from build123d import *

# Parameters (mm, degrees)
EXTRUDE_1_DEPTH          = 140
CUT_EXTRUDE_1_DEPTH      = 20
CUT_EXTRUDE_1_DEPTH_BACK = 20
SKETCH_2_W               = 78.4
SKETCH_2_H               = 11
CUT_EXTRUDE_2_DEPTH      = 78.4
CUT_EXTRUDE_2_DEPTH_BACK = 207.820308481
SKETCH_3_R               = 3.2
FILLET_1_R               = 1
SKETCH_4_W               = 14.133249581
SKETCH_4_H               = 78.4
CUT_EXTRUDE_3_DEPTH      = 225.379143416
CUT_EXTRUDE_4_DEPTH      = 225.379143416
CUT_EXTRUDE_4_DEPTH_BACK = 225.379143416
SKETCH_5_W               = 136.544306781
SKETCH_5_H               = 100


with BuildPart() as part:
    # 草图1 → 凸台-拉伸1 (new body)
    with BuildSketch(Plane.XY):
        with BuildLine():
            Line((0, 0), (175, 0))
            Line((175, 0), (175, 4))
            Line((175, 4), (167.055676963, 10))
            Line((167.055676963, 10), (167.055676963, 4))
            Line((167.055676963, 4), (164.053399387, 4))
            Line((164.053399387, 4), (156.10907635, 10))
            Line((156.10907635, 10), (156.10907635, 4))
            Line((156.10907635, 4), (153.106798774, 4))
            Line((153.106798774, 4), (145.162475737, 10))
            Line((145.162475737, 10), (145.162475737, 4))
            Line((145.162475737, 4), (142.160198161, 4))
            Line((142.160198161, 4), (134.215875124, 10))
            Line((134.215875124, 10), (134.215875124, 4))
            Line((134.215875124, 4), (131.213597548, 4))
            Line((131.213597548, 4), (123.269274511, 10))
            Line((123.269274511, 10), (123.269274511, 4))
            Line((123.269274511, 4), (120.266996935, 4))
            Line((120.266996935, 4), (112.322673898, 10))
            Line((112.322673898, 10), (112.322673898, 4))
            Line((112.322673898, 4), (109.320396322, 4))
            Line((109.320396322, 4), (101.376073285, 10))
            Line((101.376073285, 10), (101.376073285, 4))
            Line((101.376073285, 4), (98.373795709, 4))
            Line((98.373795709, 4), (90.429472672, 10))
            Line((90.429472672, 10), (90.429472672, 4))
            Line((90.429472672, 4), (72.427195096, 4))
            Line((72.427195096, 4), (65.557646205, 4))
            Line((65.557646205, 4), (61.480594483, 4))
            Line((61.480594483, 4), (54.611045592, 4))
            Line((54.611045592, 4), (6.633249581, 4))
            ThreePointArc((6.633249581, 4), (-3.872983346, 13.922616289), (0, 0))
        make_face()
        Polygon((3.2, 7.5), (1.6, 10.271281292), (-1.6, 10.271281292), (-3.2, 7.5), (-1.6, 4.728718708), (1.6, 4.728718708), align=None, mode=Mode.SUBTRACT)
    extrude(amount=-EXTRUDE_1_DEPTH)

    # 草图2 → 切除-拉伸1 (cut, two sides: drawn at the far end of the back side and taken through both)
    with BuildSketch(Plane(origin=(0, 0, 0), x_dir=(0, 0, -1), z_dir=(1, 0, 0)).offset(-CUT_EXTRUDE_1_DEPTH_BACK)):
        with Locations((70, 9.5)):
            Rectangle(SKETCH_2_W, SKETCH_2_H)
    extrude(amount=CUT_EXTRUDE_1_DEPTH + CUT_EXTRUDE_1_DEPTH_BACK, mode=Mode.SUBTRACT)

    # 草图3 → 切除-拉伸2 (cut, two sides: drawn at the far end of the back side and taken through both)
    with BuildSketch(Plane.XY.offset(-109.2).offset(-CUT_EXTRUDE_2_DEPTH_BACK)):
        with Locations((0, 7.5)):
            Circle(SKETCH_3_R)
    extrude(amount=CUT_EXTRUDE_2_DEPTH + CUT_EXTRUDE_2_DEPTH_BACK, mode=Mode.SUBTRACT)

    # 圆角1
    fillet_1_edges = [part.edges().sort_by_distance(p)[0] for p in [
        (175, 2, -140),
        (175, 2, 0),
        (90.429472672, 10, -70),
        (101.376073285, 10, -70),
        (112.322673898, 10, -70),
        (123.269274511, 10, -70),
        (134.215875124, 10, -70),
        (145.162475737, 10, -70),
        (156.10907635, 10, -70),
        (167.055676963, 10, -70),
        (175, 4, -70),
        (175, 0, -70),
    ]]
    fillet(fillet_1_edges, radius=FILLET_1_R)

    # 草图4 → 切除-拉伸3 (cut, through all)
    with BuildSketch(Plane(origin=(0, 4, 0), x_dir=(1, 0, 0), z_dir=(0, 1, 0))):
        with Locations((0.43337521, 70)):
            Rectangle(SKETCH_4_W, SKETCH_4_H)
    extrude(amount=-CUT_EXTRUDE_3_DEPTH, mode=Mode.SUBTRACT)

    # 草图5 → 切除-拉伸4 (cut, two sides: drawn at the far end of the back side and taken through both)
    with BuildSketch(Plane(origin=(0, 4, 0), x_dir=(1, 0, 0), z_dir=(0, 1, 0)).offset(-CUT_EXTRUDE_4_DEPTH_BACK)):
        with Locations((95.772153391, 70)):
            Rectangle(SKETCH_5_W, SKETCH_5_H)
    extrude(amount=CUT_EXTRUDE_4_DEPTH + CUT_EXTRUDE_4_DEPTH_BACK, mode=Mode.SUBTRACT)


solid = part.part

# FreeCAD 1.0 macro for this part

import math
import FreeCAD as App
import Part
import Sketcher
from FreeCAD import Vector
Q = App.Units.Quantity


def edges_at(feature, points):
    """Names of the edges that pass closest to the given points."""
    edges = feature.Shape.Edges
    near = lambda p: min(range(len(edges)), key=lambda i: edges[i].distToShape(Part.Vertex(*p))[0])
    return sorted({f"Edge{near(p) + 1}" for p in points})


def add_polygon(sketch, points):
    """Adds a closed chain of lines whose ends are joined by coincident constraints."""
    first, n = sketch.GeometryCount, len(points)
    for a, b in zip(points, points[1:] + points[:1]):
        sketch.addGeometry(Part.LineSegment(App.Vector(*a, 0), App.Vector(*b, 0)), False)
    for i in range(n):
        sketch.addConstraint(Sketcher.Constraint("Coincident", first + i, 2, first + (i + 1) % n, 1))

doc = App.newDocument("Part")
body = doc.addObject("PartDesign::Body", "Body")

# Sketch on XY plane
sketch1 = doc.addObject("Sketcher::SketchObject", "Sketch")
body.addObject(sketch1)
sketch1.AttachmentSupport = (doc.XY_Plane, [""])
sketch1.MapMode = "FlatFace"
sketch1.addGeometry(Part.LineSegment(Vector(0, 0, 0), Vector(175, 0, 0)), False)  # 0
sketch1.addGeometry(Part.LineSegment(Vector(175, 0, 0), Vector(175, 4, 0)), False)  # 1
sketch1.addGeometry(Part.LineSegment(Vector(175, 4, 0), Vector(167.1, 10, 0)), False)  # 2
sketch1.addGeometry(Part.LineSegment(Vector(167.1, 10, 0), Vector(167.1, 4, 0)), False)  # 3
sketch1.addGeometry(Part.LineSegment(Vector(167.1, 4, 0), Vector(164.1, 4, 0)), False)  # 4
sketch1.addGeometry(Part.LineSegment(Vector(164.1, 4, 0), Vector(156.1, 10, 0)), False)  # 5
sketch1.addGeometry(Part.LineSegment(Vector(156.1, 10, 0), Vector(156.1, 4, 0)), False)  # 6
sketch1.addGeometry(Part.LineSegment(Vector(156.1, 4, 0), Vector(153.1, 4, 0)), False)  # 7
sketch1.addGeometry(Part.LineSegment(Vector(153.1, 4, 0), Vector(145.2, 10, 0)), False)  # 8
sketch1.addGeometry(Part.LineSegment(Vector(145.2, 10, 0), Vector(145.2, 4, 0)), False)  # 9
sketch1.addGeometry(Part.LineSegment(Vector(145.2, 4, 0), Vector(142.2, 4, 0)), False)  # 10
sketch1.addGeometry(Part.LineSegment(Vector(142.2, 4, 0), Vector(134.2, 10, 0)), False)  # 11
sketch1.addGeometry(Part.LineSegment(Vector(134.2, 10, 0), Vector(134.2, 4, 0)), False)  # 12
sketch1.addGeometry(Part.LineSegment(Vector(134.2, 4, 0), Vector(131.2, 4, 0)), False)  # 13
sketch1.addGeometry(Part.LineSegment(Vector(131.2, 4, 0), Vector(123.3, 10, 0)), False)  # 14
sketch1.addGeometry(Part.LineSegment(Vector(123.3, 10, 0), Vector(123.3, 4, 0)), False)  # 15
sketch1.addGeometry(Part.LineSegment(Vector(123.3, 4, 0), Vector(120.3, 4, 0)), False)  # 16
sketch1.addGeometry(Part.LineSegment(Vector(120.3, 4, 0), Vector(112.3, 10, 0)), False)  # 17
sketch1.addGeometry(Part.LineSegment(Vector(112.3, 10, 0), Vector(112.3, 4, 0)), False)  # 18
sketch1.addGeometry(Part.LineSegment(Vector(112.3, 4, 0), Vector(109.3, 4, 0)), False)  # 19
sketch1.addGeometry(Part.LineSegment(Vector(109.3, 4, 0), Vector(101.4, 10, 0)), False)  # 20
sketch1.addGeometry(Part.LineSegment(Vector(101.4, 10, 0), Vector(101.4, 4, 0)), False)  # 21
sketch1.addGeometry(Part.LineSegment(Vector(101.4, 4, 0), Vector(98.4, 4, 0)), False)  # 22
sketch1.addGeometry(Part.LineSegment(Vector(98.4, 4, 0), Vector(90.4, 10, 0)), False)  # 23
sketch1.addGeometry(Part.LineSegment(Vector(90.4, 10, 0), Vector(90.4, 4, 0)), False)  # 24
sketch1.addGeometry(Part.LineSegment(Vector(90.4, 4, 0), Vector(6.6, 4, 0)), False)  # 25
sketch1.addGeometry(Part.ArcOfCircle(Part.Circle(Vector(0, 7.5, 0), Vector(0, 0, 1), 7.5), math.radians(-28), math.radians(270)), False)  # 26
add_polygon(sketch1, [(1.6, 10.3), (3.2, 7.5), (1.6, 4.7), (-1.6, 4.7), (-3.2, 7.5), (-1.6, 10.3)])  # lines 27-32
sketch1.addConstraint(Sketcher.Constraint("Coincident", 0, 2, 1, 1))
sketch1.addConstraint(Sketcher.Constraint("Coincident", 1, 2, 2, 1))
sketch1.addConstraint(Sketcher.Constraint("Coincident", 2, 2, 3, 1))
sketch1.addConstraint(Sketcher.Constraint("Coincident", 3, 2, 4, 1))
sketch1.addConstraint(Sketcher.Constraint("Coincident", 4, 2, 5, 1))
sketch1.addConstraint(Sketcher.Constraint("Coincident", 5, 2, 6, 1))
sketch1.addConstraint(Sketcher.Constraint("Coincident", 6, 2, 7, 1))
sketch1.addConstraint(Sketcher.Constraint("Coincident", 7, 2, 8, 1))
sketch1.addConstraint(Sketcher.Constraint("Coincident", 8, 2, 9, 1))
sketch1.addConstraint(Sketcher.Constraint("Coincident", 9, 2, 10, 1))
sketch1.addConstraint(Sketcher.Constraint("Coincident", 10, 2, 11, 1))
sketch1.addConstraint(Sketcher.Constraint("Coincident", 11, 2, 12, 1))
sketch1.addConstraint(Sketcher.Constraint("Coincident", 12, 2, 13, 1))
sketch1.addConstraint(Sketcher.Constraint("Coincident", 13, 2, 14, 1))
sketch1.addConstraint(Sketcher.Constraint("Coincident", 14, 2, 15, 1))
sketch1.addConstraint(Sketcher.Constraint("Coincident", 15, 2, 16, 1))
sketch1.addConstraint(Sketcher.Constraint("Coincident", 16, 2, 17, 1))
sketch1.addConstraint(Sketcher.Constraint("Coincident", 17, 2, 18, 1))
sketch1.addConstraint(Sketcher.Constraint("Coincident", 18, 2, 19, 1))
sketch1.addConstraint(Sketcher.Constraint("Coincident", 19, 2, 20, 1))
sketch1.addConstraint(Sketcher.Constraint("Coincident", 20, 2, 21, 1))
sketch1.addConstraint(Sketcher.Constraint("Coincident", 21, 2, 22, 1))
sketch1.addConstraint(Sketcher.Constraint("Coincident", 22, 2, 23, 1))
sketch1.addConstraint(Sketcher.Constraint("Coincident", 23, 2, 24, 1))
sketch1.addConstraint(Sketcher.Constraint("Coincident", 24, 2, 25, 1))
sketch1.addConstraint(Sketcher.Constraint("Coincident", 25, 2, 26, 1))
sketch1.addConstraint(Sketcher.Constraint("Tangent", 26, 2, 0, 1))
sketch1.addConstraint(Sketcher.Constraint("Horizontal", 0))
sketch1.addConstraint(Sketcher.Constraint("Vertical", 1))
sketch1.addConstraint(Sketcher.Constraint("Vertical", 3))
sketch1.addConstraint(Sketcher.Constraint("Horizontal", 4))
sketch1.addConstraint(Sketcher.Constraint("Vertical", 6))
sketch1.addConstraint(Sketcher.Constraint("Horizontal", 7))
sketch1.addConstraint(Sketcher.Constraint("Vertical", 9))
sketch1.addConstraint(Sketcher.Constraint("Horizontal", 10))
sketch1.addConstraint(Sketcher.Constraint("Vertical", 12))
sketch1.addConstraint(Sketcher.Constraint("Horizontal", 13))
sketch1.addConstraint(Sketcher.Constraint("Vertical", 15))
sketch1.addConstraint(Sketcher.Constraint("Horizontal", 16))
sketch1.addConstraint(Sketcher.Constraint("Vertical", 18))
sketch1.addConstraint(Sketcher.Constraint("Horizontal", 19))
sketch1.addConstraint(Sketcher.Constraint("Vertical", 21))
sketch1.addConstraint(Sketcher.Constraint("Horizontal", 22))
sketch1.addConstraint(Sketcher.Constraint("Vertical", 24))
sketch1.addConstraint(Sketcher.Constraint("Horizontal", 25))
sketch1.addConstraint(Sketcher.Constraint("Horizontal", 29))
sketch1.addConstraint(Sketcher.Constraint("Horizontal", 32))
sketch1.addConstraint(Sketcher.Constraint("Coincident", 26, 2, -1, 1))
sketch1.addConstraint(Sketcher.Constraint("Symmetric", 27, 2, 30, 2, -2))
sketch1.addConstraint(Sketcher.Constraint("Parallel", 2, 5))
sketch1.addConstraint(Sketcher.Constraint("Parallel", 5, 8))
sketch1.addConstraint(Sketcher.Constraint("Parallel", 8, 11))
sketch1.addConstraint(Sketcher.Constraint("Parallel", 11, 14))
sketch1.addConstraint(Sketcher.Constraint("Parallel", 14, 17))
sketch1.addConstraint(Sketcher.Constraint("Parallel", 17, 20))
sketch1.addConstraint(Sketcher.Constraint("Parallel", 20, 23))
sketch1.addConstraint(Sketcher.Constraint("Parallel", 27, 30))
sketch1.addConstraint(Sketcher.Constraint("Parallel", 28, 31))
sketch1.addConstraint(Sketcher.Constraint("Horizontal", 1, 2, 3, 2))
sketch1.addConstraint(Sketcher.Constraint("Horizontal", 2, 2, 5, 2))
sketch1.addConstraint(Sketcher.Constraint("Horizontal", 4, 2, 6, 2))
sketch1.addConstraint(Sketcher.Constraint("Horizontal", 5, 2, 8, 2))
sketch1.addConstraint(Sketcher.Constraint("Horizontal", 7, 2, 9, 2))
sketch1.addConstraint(Sketcher.Constraint("Horizontal", 8, 2, 11, 2))
sketch1.addConstraint(Sketcher.Constraint("Horizontal", 10, 2, 12, 2))
sketch1.addConstraint(Sketcher.Constraint("Horizontal", 11, 2, 14, 2))
sketch1.addConstraint(Sketcher.Constraint("Horizontal", 13, 2, 15, 2))
sketch1.addConstraint(Sketcher.Constraint("Horizontal", 14, 2, 17, 2))
sketch1.addConstraint(Sketcher.Constraint("Horizontal", 16, 2, 18, 2))
sketch1.addConstraint(Sketcher.Constraint("Horizontal", 17, 2, 20, 2))
sketch1.addConstraint(Sketcher.Constraint("Horizontal", 19, 2, 21, 2))
sketch1.addConstraint(Sketcher.Constraint("Horizontal", 20, 2, 23, 2))
sketch1.addConstraint(Sketcher.Constraint("Horizontal", 22, 2, 24, 2))
sketch1.addConstraint(Sketcher.Constraint("Horizontal", 26, 3, 27, 2))
sketch1.addConstraint(Sketcher.Constraint("Vertical", 29, 2, 31, 2))
sketch1.addConstraint(Sketcher.Constraint("Vertical", 28, 2, 32, 2))
sketch1.addConstraint(Sketcher.Constraint("Equal", 4, 7))
sketch1.addConstraint(Sketcher.Constraint("Equal", 7, 10))
sketch1.addConstraint(Sketcher.Constraint("Equal", 10, 13))
sketch1.addConstraint(Sketcher.Constraint("Equal", 13, 16))
sketch1.addConstraint(Sketcher.Constraint("Equal", 16, 19))
sketch1.addConstraint(Sketcher.Constraint("Equal", 19, 22))
sketch1.addConstraint(Sketcher.Constraint("Radius", 26, Q("7.5 mm")))
sketch1.addConstraint(Sketcher.Constraint("DistanceX", 0, 1, 0, 2, Q("175 mm")))
sketch1.addConstraint(Sketcher.Constraint("DistanceY", 1, 1, 1, 2, Q("4 mm")))
sketch1.addConstraint(Sketcher.Constraint("DistanceY", 3, 2, 3, 1, Q("6 mm")))
sketch1.addConstraint(Sketcher.Constraint("Angle", 27, Q("-60 deg")))
sketch1.addConstraint(Sketcher.Constraint("DistanceX", 29, 2, 29, 1, Q("3.2 mm")))
sketch1.addConstraint(Sketcher.Constraint("Distance", 27, Q("3.2 mm")))
sketch1.addConstraint(Sketcher.Constraint("DistanceX", -1, 1, 4, 2, Q("164.053399 mm")))
sketch1.addConstraint(Sketcher.Constraint("DistanceX", 4, 2, 4, 1, Q("3.002278 mm")))
pad1 = doc.addObject("PartDesign::Pad", "Pad")
body.addObject(pad1)
pad1.Profile = sketch1
pad1.Length = 140
pad1.Reversed = True

# Sketch on YZ plane
sketch2 = doc.addObject("Sketcher::SketchObject", "Sketch001")
body.addObject(sketch2)
sketch2.AttachmentSupport = (doc.YZ_Plane, [""])
sketch2.MapMode = "FlatFace"
add_polygon(sketch2, [(15, -31), (4, -31), (4, -109), (15, -109)])  # lines 0-3
sketch2.addConstraint(Sketcher.Constraint("Horizontal", 0))
sketch2.addConstraint(Sketcher.Constraint("Vertical", 1))
sketch2.addConstraint(Sketcher.Constraint("Horizontal", 2))
sketch2.addConstraint(Sketcher.Constraint("Vertical", 3))
sketch2.addConstraint(Sketcher.Constraint("DistanceX", 0, 2, 0, 1, Q("11 mm")))
sketch2.addConstraint(Sketcher.Constraint("DistanceY", 1, 2, 1, 1, Q("78.4 mm")))
sketch2.addConstraint(Sketcher.Constraint("DistanceX", -1, 1, 0, 2, Q("4 mm")))
sketch2.addConstraint(Sketcher.Constraint("DistanceY", 0, 2, -1, 1, Q("30.8 mm")))
pocket1 = doc.addObject("PartDesign::Pocket", "Pocket")
body.addObject(pocket1)
pocket1.Profile = sketch2
pocket1.Type = "TwoLengths"
pocket1.Length = 20
pocket1.Length2 = 20
pocket1.Reversed = True

# Sketch on XY plane
sketch3 = doc.addObject("Sketcher::SketchObject", "Sketch002")
body.addObject(sketch3)
sketch3.AttachmentSupport = (doc.XY_Plane, [""])
sketch3.MapMode = "FlatFace"
sketch3.AttachmentOffset = App.Placement(Vector(0, 0, -109.2), App.Rotation())
sketch3.addGeometry(Part.Circle(Vector(0, 7.5, 0), Vector(0, 0, 1), 3.2), False)
sketch3.addConstraint(Sketcher.Constraint("PointOnObject", 0, 3, -2))
sketch3.addConstraint(Sketcher.Constraint("Diameter", 0, Q("6.4 mm")))
sketch3.addConstraint(Sketcher.Constraint("DistanceY", -1, 1, 0, 3, Q("7.5 mm")))
pocket2 = doc.addObject("PartDesign::Pocket", "Pocket001")
body.addObject(pocket2)
pocket2.Profile = sketch3
pocket2.Type = "TwoLengths"
pocket2.Length = 78.4
pocket2.Length2 = 207.820308
pocket2.Reversed = True
doc.recompute()

fillet = doc.addObject("PartDesign::Fillet", "Fillet")
body.addObject(fillet)
fillet.Base = (pocket2, edges_at(pocket2, [
    (175, 2, -140),
    (175, 2, 0),
    (90.429, 10, -70),
    (101.376, 10, -70),
    (112.323, 10, -70),
    (123.269, 10, -70),
    (134.216, 10, -70),
    (145.162, 10, -70),
    (156.109, 10, -70),
    (167.056, 10, -70),
    (175, 4, -70),
    (175, 0, -70),
]))
fillet.Radius = 1

# Sketch on XZ plane
sketch4 = doc.addObject("Sketcher::SketchObject", "Sketch003")
body.addObject(sketch4)
sketch4.AttachmentSupport = (doc.XZ_Plane, [""])
sketch4.MapMode = "FlatFace"
sketch4.AttachmentOffset = App.Placement(Vector(0, 0, -4), App.Rotation())
add_polygon(sketch4, [(-7, -109), (-7, -31), (8, -31), (8, -109)])  # lines 0-3
sketch4.addConstraint(Sketcher.Constraint("Vertical", 0))
sketch4.addConstraint(Sketcher.Constraint("Horizontal", 1))
sketch4.addConstraint(Sketcher.Constraint("Vertical", 2))
sketch4.addConstraint(Sketcher.Constraint("Horizontal", 3))
sketch4.addConstraint(Sketcher.Constraint("DistanceY", 0, 1, 0, 2, Q("78.4 mm")))
sketch4.addConstraint(Sketcher.Constraint("DistanceY", 0, 2, -1, 1, Q("30.8 mm")))
sketch4.addConstraint(Sketcher.Constraint("DistanceX", -1, 1, 1, 2, Q("7.5 mm")))
sketch4.addConstraint(Sketcher.Constraint("DistanceX", 1, 1, 1, 2, Q("14.13325 mm")))
pocket3 = doc.addObject("PartDesign::Pocket", "Pocket002")
body.addObject(pocket3)
pocket3.Profile = sketch4
pocket3.Type = "ThroughAll"
pocket3.Reversed = True

# Sketch on XZ plane
sketch5 = doc.addObject("Sketcher::SketchObject", "Sketch004")
body.addObject(sketch5)
sketch5.AttachmentSupport = (doc.XZ_Plane, [""])
sketch5.MapMode = "FlatFace"
sketch5.AttachmentOffset = App.Placement(Vector(0, 0, -4), App.Rotation())
add_polygon(sketch5, [(28, -120), (28, -20), (164, -20), (164, -120)])  # lines 0-3
sketch5.addConstraint(Sketcher.Constraint("Vertical", 0))
sketch5.addConstraint(Sketcher.Constraint("Horizontal", 1))
sketch5.addConstraint(Sketcher.Constraint("Vertical", 2))
sketch5.addConstraint(Sketcher.Constraint("Horizontal", 3))
sketch5.addConstraint(Sketcher.Constraint("DistanceY", 0, 1, 0, 2, Q("100 mm")))
sketch5.addConstraint(Sketcher.Constraint("DistanceY", 0, 2, -1, 1, Q("20 mm")))
sketch5.addConstraint(Sketcher.Constraint("DistanceX", -1, 1, 0, 2, Q("27.5 mm")))
sketch5.addConstraint(Sketcher.Constraint("DistanceX", 1, 1, 1, 2, Q("136.544307 mm")))
pocket4 = doc.addObject("PartDesign::Pocket", "Pocket003")
body.addObject(pocket4)
pocket4.Profile = sketch5
pocket4.Type = "ThroughAll"
pocket4.Midplane = True

doc.recompute()
